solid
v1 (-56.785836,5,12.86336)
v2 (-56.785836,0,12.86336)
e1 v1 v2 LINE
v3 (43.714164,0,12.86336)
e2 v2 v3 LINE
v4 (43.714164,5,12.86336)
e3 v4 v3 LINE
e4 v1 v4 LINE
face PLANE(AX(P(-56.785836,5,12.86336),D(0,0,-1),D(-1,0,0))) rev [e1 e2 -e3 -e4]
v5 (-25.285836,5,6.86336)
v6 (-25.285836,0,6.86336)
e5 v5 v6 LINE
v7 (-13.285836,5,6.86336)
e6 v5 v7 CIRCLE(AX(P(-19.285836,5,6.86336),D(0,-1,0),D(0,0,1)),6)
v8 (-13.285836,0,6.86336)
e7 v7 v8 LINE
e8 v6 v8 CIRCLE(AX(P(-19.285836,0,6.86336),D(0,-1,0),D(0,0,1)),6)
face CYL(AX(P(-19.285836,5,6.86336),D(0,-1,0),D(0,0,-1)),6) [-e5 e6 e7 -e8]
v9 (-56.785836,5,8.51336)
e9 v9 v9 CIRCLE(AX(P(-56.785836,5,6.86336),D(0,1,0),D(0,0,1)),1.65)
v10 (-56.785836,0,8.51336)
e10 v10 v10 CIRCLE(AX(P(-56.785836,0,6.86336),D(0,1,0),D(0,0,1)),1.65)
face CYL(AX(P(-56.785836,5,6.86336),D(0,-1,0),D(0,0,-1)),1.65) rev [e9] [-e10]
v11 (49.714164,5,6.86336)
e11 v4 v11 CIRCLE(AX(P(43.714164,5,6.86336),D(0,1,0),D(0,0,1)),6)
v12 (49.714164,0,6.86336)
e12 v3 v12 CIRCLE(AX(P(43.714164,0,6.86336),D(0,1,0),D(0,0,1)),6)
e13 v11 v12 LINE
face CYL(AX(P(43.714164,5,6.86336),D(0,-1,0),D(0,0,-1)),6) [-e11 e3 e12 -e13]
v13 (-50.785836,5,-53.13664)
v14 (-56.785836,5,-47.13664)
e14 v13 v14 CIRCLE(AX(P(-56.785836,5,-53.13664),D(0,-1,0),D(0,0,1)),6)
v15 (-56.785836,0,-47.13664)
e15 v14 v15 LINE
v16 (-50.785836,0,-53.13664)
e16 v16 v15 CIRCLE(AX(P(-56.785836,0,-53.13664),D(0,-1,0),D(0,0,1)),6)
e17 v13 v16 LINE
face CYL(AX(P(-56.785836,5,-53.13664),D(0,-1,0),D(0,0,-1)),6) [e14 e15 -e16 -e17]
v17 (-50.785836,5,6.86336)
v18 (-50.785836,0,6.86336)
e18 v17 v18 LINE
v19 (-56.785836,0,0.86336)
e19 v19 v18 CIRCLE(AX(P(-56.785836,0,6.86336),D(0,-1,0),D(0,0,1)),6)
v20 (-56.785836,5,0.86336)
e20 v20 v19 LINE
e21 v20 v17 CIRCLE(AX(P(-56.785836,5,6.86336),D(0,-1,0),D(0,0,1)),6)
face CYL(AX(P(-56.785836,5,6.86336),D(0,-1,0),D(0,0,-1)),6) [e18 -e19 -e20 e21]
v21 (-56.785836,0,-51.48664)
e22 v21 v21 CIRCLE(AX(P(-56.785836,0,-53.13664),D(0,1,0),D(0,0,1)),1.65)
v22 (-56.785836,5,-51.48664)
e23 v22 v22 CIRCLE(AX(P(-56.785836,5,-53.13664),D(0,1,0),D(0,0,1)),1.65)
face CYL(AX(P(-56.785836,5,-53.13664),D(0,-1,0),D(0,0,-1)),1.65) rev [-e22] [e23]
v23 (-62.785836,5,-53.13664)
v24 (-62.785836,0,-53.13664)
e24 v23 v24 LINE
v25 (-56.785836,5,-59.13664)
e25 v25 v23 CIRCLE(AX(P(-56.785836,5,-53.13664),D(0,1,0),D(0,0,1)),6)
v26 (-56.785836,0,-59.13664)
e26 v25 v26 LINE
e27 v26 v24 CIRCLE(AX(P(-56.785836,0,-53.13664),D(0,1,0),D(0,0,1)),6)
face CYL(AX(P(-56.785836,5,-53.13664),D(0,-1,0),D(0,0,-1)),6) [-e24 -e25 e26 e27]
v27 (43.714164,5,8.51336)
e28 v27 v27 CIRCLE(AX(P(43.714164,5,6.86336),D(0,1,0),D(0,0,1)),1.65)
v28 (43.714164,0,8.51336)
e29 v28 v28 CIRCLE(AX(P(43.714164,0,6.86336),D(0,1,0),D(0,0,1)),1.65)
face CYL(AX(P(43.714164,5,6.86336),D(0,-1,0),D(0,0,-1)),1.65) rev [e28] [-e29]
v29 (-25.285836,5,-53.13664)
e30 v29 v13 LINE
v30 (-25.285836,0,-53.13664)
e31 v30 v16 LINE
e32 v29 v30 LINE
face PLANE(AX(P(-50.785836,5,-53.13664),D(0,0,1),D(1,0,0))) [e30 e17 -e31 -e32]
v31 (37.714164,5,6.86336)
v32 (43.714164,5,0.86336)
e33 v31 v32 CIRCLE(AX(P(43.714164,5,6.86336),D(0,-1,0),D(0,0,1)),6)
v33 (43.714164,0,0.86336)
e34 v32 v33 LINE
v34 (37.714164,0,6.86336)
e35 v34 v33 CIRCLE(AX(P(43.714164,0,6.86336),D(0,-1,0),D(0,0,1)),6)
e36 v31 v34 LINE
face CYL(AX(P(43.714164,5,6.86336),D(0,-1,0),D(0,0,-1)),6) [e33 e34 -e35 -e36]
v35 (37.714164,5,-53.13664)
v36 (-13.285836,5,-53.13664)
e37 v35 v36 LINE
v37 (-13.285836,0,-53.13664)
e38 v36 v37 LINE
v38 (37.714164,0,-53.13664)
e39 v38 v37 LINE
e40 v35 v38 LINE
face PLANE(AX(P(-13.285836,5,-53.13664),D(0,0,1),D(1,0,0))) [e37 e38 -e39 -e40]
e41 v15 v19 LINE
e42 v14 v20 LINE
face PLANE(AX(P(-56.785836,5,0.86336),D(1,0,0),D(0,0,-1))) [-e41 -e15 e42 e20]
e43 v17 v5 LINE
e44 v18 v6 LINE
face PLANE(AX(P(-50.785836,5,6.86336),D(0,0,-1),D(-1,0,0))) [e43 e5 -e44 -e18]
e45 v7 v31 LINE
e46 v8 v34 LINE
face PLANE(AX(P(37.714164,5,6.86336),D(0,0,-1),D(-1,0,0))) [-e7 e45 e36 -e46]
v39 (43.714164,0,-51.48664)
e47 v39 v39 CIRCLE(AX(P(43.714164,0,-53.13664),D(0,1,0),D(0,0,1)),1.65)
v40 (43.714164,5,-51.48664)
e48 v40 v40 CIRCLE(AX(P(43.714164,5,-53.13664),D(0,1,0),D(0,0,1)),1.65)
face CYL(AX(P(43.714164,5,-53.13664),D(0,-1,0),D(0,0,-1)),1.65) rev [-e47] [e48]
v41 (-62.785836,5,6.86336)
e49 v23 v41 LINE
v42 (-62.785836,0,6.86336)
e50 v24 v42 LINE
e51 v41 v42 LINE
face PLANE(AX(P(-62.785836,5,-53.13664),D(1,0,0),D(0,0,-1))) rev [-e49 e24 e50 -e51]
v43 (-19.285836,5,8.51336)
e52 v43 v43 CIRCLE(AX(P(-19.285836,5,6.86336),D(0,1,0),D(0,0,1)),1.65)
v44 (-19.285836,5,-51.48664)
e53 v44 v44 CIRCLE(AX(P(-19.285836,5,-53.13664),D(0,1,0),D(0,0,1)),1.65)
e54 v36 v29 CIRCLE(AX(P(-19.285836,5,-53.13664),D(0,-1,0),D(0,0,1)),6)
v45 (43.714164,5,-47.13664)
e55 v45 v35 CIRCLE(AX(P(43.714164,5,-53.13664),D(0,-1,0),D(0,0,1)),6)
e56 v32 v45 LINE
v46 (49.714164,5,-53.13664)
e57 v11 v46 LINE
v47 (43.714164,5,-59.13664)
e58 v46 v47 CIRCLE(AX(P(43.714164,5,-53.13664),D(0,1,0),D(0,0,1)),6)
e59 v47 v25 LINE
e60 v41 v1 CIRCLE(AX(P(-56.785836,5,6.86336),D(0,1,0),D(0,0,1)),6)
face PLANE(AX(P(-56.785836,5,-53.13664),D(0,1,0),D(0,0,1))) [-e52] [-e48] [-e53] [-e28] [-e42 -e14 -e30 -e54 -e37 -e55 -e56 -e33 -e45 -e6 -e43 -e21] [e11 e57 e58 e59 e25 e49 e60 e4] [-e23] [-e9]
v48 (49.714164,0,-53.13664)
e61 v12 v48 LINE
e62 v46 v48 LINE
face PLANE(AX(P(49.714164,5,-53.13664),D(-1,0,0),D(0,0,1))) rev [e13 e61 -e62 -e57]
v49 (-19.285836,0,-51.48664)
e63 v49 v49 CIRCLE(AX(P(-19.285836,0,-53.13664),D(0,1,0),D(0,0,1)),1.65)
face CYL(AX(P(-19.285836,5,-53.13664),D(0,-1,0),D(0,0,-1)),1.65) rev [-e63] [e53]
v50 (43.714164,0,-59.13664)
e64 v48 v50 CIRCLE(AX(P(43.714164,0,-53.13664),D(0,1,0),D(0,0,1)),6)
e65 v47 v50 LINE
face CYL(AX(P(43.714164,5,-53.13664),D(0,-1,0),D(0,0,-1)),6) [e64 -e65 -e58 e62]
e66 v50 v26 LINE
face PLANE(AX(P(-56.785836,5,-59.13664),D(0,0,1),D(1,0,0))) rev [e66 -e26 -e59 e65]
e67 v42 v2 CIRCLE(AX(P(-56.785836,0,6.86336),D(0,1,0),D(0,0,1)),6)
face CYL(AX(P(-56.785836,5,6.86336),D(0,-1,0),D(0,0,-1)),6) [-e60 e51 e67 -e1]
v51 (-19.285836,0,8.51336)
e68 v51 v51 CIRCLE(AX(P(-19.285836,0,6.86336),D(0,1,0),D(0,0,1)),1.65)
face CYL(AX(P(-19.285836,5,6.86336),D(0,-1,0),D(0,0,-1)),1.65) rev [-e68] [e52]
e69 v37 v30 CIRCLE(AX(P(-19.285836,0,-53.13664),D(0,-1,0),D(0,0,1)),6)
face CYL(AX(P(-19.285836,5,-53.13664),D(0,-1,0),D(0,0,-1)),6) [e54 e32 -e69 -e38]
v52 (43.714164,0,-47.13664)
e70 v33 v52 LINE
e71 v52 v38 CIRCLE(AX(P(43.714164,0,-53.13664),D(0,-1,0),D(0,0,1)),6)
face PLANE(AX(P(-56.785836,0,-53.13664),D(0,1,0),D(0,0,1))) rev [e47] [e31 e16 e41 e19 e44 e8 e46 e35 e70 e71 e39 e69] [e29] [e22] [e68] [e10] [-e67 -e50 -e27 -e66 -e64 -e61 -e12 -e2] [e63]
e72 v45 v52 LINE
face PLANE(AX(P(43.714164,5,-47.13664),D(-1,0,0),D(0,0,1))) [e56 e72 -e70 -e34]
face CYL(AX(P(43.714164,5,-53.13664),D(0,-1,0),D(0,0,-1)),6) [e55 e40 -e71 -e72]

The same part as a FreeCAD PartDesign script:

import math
import FreeCAD as App
import Part
import Sketcher
from FreeCAD import Vector
Q = App.Units.Quantity

doc = App.newDocument("Part")
body = doc.addObject("PartDesign::Body", "Body")

sketch1 = body.newObject("Sketcher::SketchObject", "Sketch")
sketch1.AttachmentSupport = (doc.getObject("XZ_Plane"), [""])
sketch1.MapMode = "FlatFace"
sketch1.addGeometry([
    Part.LineSegment(Vector(-62.8, -53.1, 0), Vector(-62.8, 6.9, 0)),
    Part.ArcOfCircle(Part.Circle(Vector(-56.8, 6.9, 0), Vector(0, 0, 1), 6), math.radians(90), math.radians(180)),
    Part.LineSegment(Vector(-56.8, 12.9, 0), Vector(43.7, 12.9, 0)),
    Part.ArcOfCircle(Part.Circle(Vector(43.7, 6.9, 0), Vector(0, 0, 1), 6), math.radians(0), math.radians(90)),
    Part.LineSegment(Vector(49.7, 6.9, 0), Vector(49.7, -53.1, 0)),
    Part.ArcOfCircle(Part.Circle(Vector(43.7, -53.1, 0), Vector(0, 0, 1), 6), math.radians(-90), math.radians(0)),
    Part.LineSegment(Vector(43.7, -59.1, 0), Vector(-56.8, -59.1, 0)),
    Part.ArcOfCircle(Part.Circle(Vector(-56.8, -53.1, 0), Vector(0, 0, 1), 6), math.radians(180), math.radians(270)),
    Part.Circle(Vector(-56.8, 6.9, 0), Vector(0, 0, 1), 1.6),
    Part.Circle(Vector(-19.3, 6.9, 0), Vector(0, 0, 1), 1.6),
    Part.Circle(Vector(43.7, 6.9, 0), Vector(0, 0, 1), 1.6),
    Part.Circle(Vector(-56.8, -53.1, 0), Vector(0, 0, 1), 1.6),
    Part.Circle(Vector(-19.3, -53.1, 0), Vector(0, 0, 1), 1.6),
    Part.LineSegment(Vector(-25.3, 6.9, 0), Vector(-50.8, 6.9, 0)),
    Part.ArcOfCircle(Part.Circle(Vector(-56.8, 6.9, 0), Vector(0, 0, 1), 6), math.radians(-90), math.radians(0)),
    Part.LineSegment(Vector(-56.8, 0.9, 0), Vector(-56.8, -47.1, 0)),
    Part.ArcOfCircle(Part.Circle(Vector(-56.8, -53.1, 0), Vector(0, 0, 1), 6), math.radians(0), math.radians(90)),
    Part.LineSegment(Vector(-50.8, -53.1, 0), Vector(-25.3, -53.1, 0)),
    Part.ArcOfCircle(Part.Circle(Vector(-19.3, -53.1, 0), Vector(0, 0, 1), 6), math.radians(0), math.radians(180)),
    Part.LineSegment(Vector(-13.3, -53.1, 0), Vector(37.7, -53.1, 0)),
    Part.ArcOfCircle(Part.Circle(Vector(43.7, -53.1, 0), Vector(0, 0, 1), 6), math.radians(90), math.radians(180)),
    Part.LineSegment(Vector(43.7, -47.1, 0), Vector(43.7, 0.9, 0)),
    Part.ArcOfCircle(Part.Circle(Vector(43.7, 6.9, 0), Vector(0, 0, 1), 6), math.radians(180), math.radians(270)),
    Part.LineSegment(Vector(37.7, 6.9, 0), Vector(-13.3, 6.9, 0)),
    Part.ArcOfCircle(Part.Circle(Vector(-19.3, 6.9, 0), Vector(0, 0, 1), 6), math.radians(180), math.radians(360)),
    Part.Circle(Vector(43.7, -53.1, 0), Vector(0, 0, 1), 1.6),
], False)
sketch1.addConstraint([
    Sketcher.Constraint("Tangent", 0, 2, 1, 2),
    Sketcher.Constraint("Tangent", 1, 1, 2, 1),
    Sketcher.Constraint("Tangent", 2, 2, 3, 2),
    Sketcher.Constraint("Tangent", 3, 1, 4, 1),
    Sketcher.Constraint("Tangent", 4, 2, 5, 2),
    Sketcher.Constraint("Tangent", 5, 1, 6, 1),
    Sketcher.Constraint("Tangent", 6, 2, 7, 2),
    Sketcher.Constraint("Tangent", 7, 1, 0, 1),
    Sketcher.Constraint("Coincident", 13, 2, 14, 2),
    Sketcher.Constraint("Coincident", 14, 1, 15, 1),
    Sketcher.Constraint("Coincident", 15, 2, 16, 2),
    Sketcher.Constraint("Coincident", 16, 1, 17, 1),
    Sketcher.Constraint("Coincident", 17, 2, 18, 2),
    Sketcher.Constraint("Coincident", 18, 1, 19, 1),
    Sketcher.Constraint("Coincident", 19, 2, 20, 2),
    Sketcher.Constraint("Coincident", 20, 1, 21, 1),
    Sketcher.Constraint("Coincident", 21, 2, 22, 2),
    Sketcher.Constraint("Coincident", 22, 1, 23, 1),
    Sketcher.Constraint("Coincident", 23, 2, 24, 2),
    Sketcher.Constraint("Coincident", 24, 1, 13, 1),
    Sketcher.Constraint("Vertical", 0),
    Sketcher.Constraint("Horizontal", 2),
    Sketcher.Constraint("Vertical", 4),
    Sketcher.Constraint("Horizontal", 6),
    Sketcher.Constraint("Horizontal", 13),
    Sketcher.Constraint("Vertical", 15),
    Sketcher.Constraint("Horizontal", 17),
    Sketcher.Constraint("Horizontal", 19),
    Sketcher.Constraint("Vertical", 21),
    Sketcher.Constraint("Horizontal", 23),
    Sketcher.Constraint("Coincident", 8, 3, 1, 3),
    Sketcher.Constraint("Coincident", 10, 3, 3, 3),
    Sketcher.Constraint("Coincident", 11, 3, 7, 3),
    Sketcher.Constraint("Coincident", 14, 3, 1, 3),
    Sketcher.Constraint("Coincident", 16, 3, 7, 3),
    Sketcher.Constraint("Coincident", 18, 3, 12, 3),
    Sketcher.Constraint("Coincident", 20, 3, 5, 3),
    Sketcher.Constraint("Coincident", 22, 3, 3, 3),
    Sketcher.Constraint("Coincident", 24, 3, 9, 3),
    Sketcher.Constraint("Coincident", 25, 3, 5, 3),
    Sketcher.Constraint("Equal", 1, 3),
    Sketcher.Constraint("Equal", 3, 5),
    Sketcher.Constraint("Equal", 5, 7),
    Sketcher.Constraint("Equal", 8, 9),
    Sketcher.Constraint("Equal", 9, 10),
    Sketcher.Constraint("Equal", 10, 11),
    Sketcher.Constraint("Equal", 11, 12),
    Sketcher.Constraint("Equal", 7, 14),
    Sketcher.Constraint("Equal", 14, 16),
    Sketcher.Constraint("Equal", 16, 18),
    Sketcher.Constraint("Equal", 18, 20),
    Sketcher.Constraint("Equal", 20, 22),
    Sketcher.Constraint("Equal", 22, 24),
    Sketcher.Constraint("Equal", 12, 25),
    Sketcher.Constraint("Horizontal", 8, 3, 9, 3),
    Sketcher.Constraint("Horizontal", 11, 3, 12, 3),
    Sketcher.Constraint("Horizontal", 3, 1, 13, 2),
    Sketcher.Constraint("Horizontal", 7, 1, 16, 1),
    Sketcher.Constraint("Horizontal", 17, 2, 18, 1),
    Sketcher.Constraint("Horizontal", 13, 2, 22, 1),
    Sketcher.Constraint("Vertical", 9, 3, 12, 3),
    Sketcher.Constraint("Vertical", 6, 2, 14, 1),
    Sketcher.Constraint("Vertical", 5, 1, 20, 1),
    Sketcher.Constraint("Radius", 1, Q("6 mm")),
    Sketcher.Constraint("Diameter", 8, Q("3.3 mm")),
    Sketcher.Constraint("DistanceX", 19, 1, 19, 2, Q("51 mm")),
    Sketcher.Constraint("DistanceY", 0, 1, 0, 2, Q("60 mm")),
    Sketcher.Constraint("DistanceX", 2, 1, 2, 2, Q("100.5 mm")),
    Sketcher.Constraint("DistanceY", -1, 1, 1, 3, Q("6.86336 mm")),
    Sketcher.Constraint("DistanceX", 1, 3, -1, 1, Q("56.785836 mm")),
])
pad1 = body.newObject("PartDesign::Pad", "Pad")
pad1.Profile = sketch1
pad1.Length = 5
pad1.Reversed = True

doc.recompute()
